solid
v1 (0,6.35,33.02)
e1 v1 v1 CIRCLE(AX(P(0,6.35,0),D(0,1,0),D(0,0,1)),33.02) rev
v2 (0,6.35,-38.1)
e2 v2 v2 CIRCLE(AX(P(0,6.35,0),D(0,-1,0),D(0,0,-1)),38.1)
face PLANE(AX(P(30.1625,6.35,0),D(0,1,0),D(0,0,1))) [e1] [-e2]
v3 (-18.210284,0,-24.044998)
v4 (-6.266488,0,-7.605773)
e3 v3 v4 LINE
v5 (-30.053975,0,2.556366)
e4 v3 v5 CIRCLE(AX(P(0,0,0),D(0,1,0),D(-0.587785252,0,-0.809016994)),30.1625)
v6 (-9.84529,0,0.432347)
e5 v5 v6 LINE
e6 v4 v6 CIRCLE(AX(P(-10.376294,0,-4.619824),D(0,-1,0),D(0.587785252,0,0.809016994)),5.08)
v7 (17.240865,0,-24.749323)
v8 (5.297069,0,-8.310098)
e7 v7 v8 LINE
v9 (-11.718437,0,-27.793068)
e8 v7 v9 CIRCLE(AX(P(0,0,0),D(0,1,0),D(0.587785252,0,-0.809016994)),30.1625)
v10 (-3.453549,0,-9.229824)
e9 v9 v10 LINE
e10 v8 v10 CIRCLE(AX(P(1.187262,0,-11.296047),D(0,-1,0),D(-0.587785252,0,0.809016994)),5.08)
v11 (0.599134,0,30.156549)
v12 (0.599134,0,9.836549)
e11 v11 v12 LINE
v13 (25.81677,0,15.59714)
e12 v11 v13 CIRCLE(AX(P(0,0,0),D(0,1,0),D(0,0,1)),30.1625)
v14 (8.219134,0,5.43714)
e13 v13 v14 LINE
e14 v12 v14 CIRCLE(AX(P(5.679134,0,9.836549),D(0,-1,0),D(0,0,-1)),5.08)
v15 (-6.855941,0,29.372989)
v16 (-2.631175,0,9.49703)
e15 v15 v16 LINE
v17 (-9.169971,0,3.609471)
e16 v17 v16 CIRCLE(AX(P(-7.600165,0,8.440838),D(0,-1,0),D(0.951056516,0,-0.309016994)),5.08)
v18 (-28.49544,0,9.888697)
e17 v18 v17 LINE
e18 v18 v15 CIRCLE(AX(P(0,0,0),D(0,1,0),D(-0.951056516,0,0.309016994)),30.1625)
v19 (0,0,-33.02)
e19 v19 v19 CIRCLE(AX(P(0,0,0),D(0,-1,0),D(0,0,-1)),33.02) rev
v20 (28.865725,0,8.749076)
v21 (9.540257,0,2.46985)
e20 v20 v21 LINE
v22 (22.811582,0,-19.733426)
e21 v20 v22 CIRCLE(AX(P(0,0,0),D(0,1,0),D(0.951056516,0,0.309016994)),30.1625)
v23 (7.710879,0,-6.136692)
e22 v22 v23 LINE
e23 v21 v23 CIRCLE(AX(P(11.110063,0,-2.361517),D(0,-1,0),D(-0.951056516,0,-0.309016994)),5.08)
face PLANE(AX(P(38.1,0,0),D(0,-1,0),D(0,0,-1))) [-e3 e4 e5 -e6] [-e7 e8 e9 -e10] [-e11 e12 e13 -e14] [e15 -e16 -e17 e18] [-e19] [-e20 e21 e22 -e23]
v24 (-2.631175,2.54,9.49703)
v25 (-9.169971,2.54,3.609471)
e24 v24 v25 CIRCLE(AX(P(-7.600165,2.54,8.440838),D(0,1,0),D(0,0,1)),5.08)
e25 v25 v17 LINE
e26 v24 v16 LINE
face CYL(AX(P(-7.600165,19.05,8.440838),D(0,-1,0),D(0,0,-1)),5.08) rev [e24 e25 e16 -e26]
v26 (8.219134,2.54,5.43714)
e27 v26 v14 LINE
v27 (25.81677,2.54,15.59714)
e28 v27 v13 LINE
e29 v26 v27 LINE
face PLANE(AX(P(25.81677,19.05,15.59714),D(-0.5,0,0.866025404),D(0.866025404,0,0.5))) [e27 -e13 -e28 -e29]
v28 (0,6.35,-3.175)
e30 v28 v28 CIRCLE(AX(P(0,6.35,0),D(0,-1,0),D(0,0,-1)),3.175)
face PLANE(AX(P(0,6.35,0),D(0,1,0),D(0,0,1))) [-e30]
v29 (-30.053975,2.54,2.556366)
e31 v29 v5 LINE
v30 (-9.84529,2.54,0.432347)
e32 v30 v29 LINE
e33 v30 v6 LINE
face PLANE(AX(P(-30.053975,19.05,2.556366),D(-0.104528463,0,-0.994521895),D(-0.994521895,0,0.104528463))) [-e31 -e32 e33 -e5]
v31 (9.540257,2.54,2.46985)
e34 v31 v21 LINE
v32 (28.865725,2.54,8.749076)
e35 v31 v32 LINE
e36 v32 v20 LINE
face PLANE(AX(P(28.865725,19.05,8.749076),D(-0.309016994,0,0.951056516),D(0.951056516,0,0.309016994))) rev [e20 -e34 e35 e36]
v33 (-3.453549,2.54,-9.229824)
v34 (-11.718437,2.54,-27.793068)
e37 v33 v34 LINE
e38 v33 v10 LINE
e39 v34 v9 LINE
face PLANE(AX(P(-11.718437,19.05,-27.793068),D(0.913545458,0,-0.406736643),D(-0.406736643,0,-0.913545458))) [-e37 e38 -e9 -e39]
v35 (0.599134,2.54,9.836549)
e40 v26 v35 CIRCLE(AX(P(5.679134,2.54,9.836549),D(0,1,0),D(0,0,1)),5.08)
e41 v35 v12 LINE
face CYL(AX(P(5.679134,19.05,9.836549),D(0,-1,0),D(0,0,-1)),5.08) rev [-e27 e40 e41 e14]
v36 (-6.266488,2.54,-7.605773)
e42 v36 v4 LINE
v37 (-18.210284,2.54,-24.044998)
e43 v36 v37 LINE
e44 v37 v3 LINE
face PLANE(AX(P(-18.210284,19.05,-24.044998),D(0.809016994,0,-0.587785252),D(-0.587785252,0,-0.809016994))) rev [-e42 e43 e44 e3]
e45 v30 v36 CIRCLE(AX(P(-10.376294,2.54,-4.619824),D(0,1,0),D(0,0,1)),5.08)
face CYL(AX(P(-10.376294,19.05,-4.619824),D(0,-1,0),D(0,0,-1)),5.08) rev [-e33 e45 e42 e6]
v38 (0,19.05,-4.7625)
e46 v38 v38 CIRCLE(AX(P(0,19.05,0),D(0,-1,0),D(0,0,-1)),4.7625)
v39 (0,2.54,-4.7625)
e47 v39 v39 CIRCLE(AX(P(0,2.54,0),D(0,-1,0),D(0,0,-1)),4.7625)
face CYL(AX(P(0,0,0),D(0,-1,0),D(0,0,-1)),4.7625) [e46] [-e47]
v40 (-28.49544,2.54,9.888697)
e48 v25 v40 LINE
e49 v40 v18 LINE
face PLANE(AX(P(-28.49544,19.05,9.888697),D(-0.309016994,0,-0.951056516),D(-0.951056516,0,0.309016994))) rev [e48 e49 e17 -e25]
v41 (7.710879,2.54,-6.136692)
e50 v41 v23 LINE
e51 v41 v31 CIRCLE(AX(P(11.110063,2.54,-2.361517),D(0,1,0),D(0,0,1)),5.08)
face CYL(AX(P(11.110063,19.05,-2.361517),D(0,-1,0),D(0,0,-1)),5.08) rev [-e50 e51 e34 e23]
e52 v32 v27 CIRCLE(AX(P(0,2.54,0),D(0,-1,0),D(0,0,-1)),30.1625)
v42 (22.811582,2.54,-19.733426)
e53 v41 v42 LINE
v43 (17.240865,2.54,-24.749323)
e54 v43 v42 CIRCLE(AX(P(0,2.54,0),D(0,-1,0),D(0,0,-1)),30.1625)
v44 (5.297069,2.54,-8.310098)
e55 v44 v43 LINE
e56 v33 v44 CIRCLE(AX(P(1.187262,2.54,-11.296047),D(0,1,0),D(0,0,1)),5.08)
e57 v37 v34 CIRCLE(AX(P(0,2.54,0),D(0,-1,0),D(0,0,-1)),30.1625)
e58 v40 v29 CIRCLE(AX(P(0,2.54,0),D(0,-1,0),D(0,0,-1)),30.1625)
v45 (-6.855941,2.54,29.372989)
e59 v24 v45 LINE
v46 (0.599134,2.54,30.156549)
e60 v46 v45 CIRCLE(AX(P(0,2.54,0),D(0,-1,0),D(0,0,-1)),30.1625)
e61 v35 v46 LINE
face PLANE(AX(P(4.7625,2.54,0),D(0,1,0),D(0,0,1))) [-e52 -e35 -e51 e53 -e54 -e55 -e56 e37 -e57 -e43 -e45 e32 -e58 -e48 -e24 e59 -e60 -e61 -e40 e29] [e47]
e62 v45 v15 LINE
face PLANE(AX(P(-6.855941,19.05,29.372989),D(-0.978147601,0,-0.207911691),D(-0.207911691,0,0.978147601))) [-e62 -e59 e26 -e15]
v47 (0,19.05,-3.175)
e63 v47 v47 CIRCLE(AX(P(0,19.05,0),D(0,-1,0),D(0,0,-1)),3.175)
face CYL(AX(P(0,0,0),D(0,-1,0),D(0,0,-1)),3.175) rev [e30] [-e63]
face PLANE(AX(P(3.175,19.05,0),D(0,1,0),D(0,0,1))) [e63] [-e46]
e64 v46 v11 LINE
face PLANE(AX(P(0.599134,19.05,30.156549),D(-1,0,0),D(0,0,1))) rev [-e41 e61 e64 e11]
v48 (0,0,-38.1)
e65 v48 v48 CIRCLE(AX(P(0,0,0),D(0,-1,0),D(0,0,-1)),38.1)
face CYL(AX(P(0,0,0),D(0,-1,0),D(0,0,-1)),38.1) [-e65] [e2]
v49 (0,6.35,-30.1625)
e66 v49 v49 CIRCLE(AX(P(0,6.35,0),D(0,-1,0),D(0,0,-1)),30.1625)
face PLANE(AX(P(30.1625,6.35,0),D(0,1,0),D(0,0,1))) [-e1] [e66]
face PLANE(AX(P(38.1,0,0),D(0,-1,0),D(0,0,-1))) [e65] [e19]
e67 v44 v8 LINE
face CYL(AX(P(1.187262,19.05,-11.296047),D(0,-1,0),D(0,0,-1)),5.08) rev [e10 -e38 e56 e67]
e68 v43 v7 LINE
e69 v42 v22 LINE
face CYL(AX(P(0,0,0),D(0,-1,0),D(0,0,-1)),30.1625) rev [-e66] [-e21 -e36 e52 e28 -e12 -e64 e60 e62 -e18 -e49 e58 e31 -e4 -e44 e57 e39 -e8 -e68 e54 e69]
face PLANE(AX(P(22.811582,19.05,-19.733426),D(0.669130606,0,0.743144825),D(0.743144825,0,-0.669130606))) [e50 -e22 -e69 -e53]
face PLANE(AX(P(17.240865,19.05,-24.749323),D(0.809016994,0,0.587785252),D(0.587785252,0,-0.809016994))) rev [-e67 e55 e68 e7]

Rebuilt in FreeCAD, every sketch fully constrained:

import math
import FreeCAD as App
import Part
import Sketcher
from FreeCAD import Vector
Q = App.Units.Quantity


def add_polygon(sketch, points):
    """Adds a closed chain of lines whose ends are joined by coincident constraints."""
    first, n = sketch.GeometryCount, len(points)
    for a, b in zip(points, points[1:] + points[:1]):
        sketch.addGeometry(Part.LineSegment(App.Vector(*a, 0), App.Vector(*b, 0)), False)
    for i in range(n):
        sketch.addConstraint(Sketcher.Constraint("Coincident", first + i, 2, first + (i + 1) % n, 1))

doc = App.newDocument("Part")
body = doc.addObject("PartDesign::Body", "Body")

sketch1 = body.newObject("Sketcher::SketchObject", "Sketch")
sketch1.AttachmentSupport = (doc.getObject("XY_Plane"), [""])
sketch1.MapMode = "FlatFace"
add_polygon(sketch1, [(38.1, 0), (38.1, 6.3), (30.2, 6.3), (30.2, 2.5), (4.8, 2.5), (4.8, 19.1), (3.2, 19.1), (3.2, 6.3), (0, 6.3), (0, 0)])
sketch1.addConstraint([
    Sketcher.Constraint("Vertical", 0),
    Sketcher.Constraint("Horizontal", 1),
    Sketcher.Constraint("Vertical", 2),
    Sketcher.Constraint("Horizontal", 3),
    Sketcher.Constraint("Vertical", 4),
    Sketcher.Constraint("Horizontal", 5),
    Sketcher.Constraint("Vertical", 6),
    Sketcher.Constraint("Horizontal", 7),
    Sketcher.Constraint("Vertical", 8),
    Sketcher.Constraint("Horizontal", 9),
    Sketcher.Constraint("Coincident", 8, 2, -1, 1),
    Sketcher.Constraint("Horizontal", 1, 2, 6, 2),
    Sketcher.Constraint("DistanceX", 3, 2, 3, 1, Q("1 in")),
    Sketcher.Constraint("DistanceX", 9, 1, 9, 2, Q("1.5 in")),
    Sketcher.Constraint("DistanceY", 6, 2, 6, 1, Q("0.5 in")),
    Sketcher.Constraint("DistanceY", 0, 1, 0, 2, Q("0.25 in")),
    Sketcher.Constraint("DistanceY", 2, 2, 2, 1, Q("0.15 in")),
    Sketcher.Constraint("DistanceX", 1, 2, 1, 1, Q("0.3125 in")),
    Sketcher.Constraint("DistanceX", 5, 2, 5, 1, Q("0.0625 in")),
])
revolution = body.newObject("PartDesign::Revolution", "Revolution")
revolution.Profile = sketch1
revolution.ReferenceAxis = (sketch1, ["V_Axis"])
revolution.Angle = 360

sketch2 = body.newObject("Sketcher::SketchObject", "Sketch001")
sketch2.AttachmentSupport = (doc.getObject("XZ_Plane"), [""])
sketch2.MapMode = "FlatFace"
sketch2.addGeometry([
    Part.LineSegment(Vector(1, 30, 0), Vector(1, 10, 0)),
    Part.ArcOfCircle(Part.Circle(Vector(6, 10, 0), Vector(0, 0, 1), 5), math.radians(-180), math.radians(-60)),
    Part.LineSegment(Vector(8, 5, 0), Vector(26, 16, 0)),
    Part.ArcOfCircle(Part.Circle(Vector(0, 0, 0), Vector(0, 0, 1), 30), math.radians(31), math.radians(89)),
], False)
sketch2.addConstraint([
    Sketcher.Constraint("Tangent", 0, 2, 1, 1),
    Sketcher.Constraint("Tangent", 1, 2, 2, 1),
    Sketcher.Constraint("Coincident", 2, 2, 3, 1),
    Sketcher.Constraint("Coincident", 3, 2, 0, 1),
    Sketcher.Constraint("Vertical", 0),
    Sketcher.Constraint("Coincident", 3, 3, -1, 1),
    Sketcher.Constraint("Radius", 1, Q("0.2 in")),
    Sketcher.Constraint("DistanceY", 0, 2, 0, 1, Q("0.8 in")),
    Sketcher.Constraint("Angle", 2, Q("30 deg")),
    Sketcher.Constraint("Radius", 3, Q("1.1875 in")),
    Sketcher.Constraint("Distance", 2, Q("0.8 in")),
])
pocket1 = body.newObject("PartDesign::Pocket", "Pocket")
pocket1.Profile = sketch2
pocket1.Type = "ThroughAll"
doc.recompute()

polarpattern = body.newObject("PartDesign::PolarPattern", "PolarPattern")
polarpattern.Originals = [pocket1]
polarpattern.Axis = (doc.getObject("Y_Axis"), [""])
polarpattern.Angle = 360
polarpattern.Occurrences = 5
body.Tip = polarpattern

doc.recompute()
